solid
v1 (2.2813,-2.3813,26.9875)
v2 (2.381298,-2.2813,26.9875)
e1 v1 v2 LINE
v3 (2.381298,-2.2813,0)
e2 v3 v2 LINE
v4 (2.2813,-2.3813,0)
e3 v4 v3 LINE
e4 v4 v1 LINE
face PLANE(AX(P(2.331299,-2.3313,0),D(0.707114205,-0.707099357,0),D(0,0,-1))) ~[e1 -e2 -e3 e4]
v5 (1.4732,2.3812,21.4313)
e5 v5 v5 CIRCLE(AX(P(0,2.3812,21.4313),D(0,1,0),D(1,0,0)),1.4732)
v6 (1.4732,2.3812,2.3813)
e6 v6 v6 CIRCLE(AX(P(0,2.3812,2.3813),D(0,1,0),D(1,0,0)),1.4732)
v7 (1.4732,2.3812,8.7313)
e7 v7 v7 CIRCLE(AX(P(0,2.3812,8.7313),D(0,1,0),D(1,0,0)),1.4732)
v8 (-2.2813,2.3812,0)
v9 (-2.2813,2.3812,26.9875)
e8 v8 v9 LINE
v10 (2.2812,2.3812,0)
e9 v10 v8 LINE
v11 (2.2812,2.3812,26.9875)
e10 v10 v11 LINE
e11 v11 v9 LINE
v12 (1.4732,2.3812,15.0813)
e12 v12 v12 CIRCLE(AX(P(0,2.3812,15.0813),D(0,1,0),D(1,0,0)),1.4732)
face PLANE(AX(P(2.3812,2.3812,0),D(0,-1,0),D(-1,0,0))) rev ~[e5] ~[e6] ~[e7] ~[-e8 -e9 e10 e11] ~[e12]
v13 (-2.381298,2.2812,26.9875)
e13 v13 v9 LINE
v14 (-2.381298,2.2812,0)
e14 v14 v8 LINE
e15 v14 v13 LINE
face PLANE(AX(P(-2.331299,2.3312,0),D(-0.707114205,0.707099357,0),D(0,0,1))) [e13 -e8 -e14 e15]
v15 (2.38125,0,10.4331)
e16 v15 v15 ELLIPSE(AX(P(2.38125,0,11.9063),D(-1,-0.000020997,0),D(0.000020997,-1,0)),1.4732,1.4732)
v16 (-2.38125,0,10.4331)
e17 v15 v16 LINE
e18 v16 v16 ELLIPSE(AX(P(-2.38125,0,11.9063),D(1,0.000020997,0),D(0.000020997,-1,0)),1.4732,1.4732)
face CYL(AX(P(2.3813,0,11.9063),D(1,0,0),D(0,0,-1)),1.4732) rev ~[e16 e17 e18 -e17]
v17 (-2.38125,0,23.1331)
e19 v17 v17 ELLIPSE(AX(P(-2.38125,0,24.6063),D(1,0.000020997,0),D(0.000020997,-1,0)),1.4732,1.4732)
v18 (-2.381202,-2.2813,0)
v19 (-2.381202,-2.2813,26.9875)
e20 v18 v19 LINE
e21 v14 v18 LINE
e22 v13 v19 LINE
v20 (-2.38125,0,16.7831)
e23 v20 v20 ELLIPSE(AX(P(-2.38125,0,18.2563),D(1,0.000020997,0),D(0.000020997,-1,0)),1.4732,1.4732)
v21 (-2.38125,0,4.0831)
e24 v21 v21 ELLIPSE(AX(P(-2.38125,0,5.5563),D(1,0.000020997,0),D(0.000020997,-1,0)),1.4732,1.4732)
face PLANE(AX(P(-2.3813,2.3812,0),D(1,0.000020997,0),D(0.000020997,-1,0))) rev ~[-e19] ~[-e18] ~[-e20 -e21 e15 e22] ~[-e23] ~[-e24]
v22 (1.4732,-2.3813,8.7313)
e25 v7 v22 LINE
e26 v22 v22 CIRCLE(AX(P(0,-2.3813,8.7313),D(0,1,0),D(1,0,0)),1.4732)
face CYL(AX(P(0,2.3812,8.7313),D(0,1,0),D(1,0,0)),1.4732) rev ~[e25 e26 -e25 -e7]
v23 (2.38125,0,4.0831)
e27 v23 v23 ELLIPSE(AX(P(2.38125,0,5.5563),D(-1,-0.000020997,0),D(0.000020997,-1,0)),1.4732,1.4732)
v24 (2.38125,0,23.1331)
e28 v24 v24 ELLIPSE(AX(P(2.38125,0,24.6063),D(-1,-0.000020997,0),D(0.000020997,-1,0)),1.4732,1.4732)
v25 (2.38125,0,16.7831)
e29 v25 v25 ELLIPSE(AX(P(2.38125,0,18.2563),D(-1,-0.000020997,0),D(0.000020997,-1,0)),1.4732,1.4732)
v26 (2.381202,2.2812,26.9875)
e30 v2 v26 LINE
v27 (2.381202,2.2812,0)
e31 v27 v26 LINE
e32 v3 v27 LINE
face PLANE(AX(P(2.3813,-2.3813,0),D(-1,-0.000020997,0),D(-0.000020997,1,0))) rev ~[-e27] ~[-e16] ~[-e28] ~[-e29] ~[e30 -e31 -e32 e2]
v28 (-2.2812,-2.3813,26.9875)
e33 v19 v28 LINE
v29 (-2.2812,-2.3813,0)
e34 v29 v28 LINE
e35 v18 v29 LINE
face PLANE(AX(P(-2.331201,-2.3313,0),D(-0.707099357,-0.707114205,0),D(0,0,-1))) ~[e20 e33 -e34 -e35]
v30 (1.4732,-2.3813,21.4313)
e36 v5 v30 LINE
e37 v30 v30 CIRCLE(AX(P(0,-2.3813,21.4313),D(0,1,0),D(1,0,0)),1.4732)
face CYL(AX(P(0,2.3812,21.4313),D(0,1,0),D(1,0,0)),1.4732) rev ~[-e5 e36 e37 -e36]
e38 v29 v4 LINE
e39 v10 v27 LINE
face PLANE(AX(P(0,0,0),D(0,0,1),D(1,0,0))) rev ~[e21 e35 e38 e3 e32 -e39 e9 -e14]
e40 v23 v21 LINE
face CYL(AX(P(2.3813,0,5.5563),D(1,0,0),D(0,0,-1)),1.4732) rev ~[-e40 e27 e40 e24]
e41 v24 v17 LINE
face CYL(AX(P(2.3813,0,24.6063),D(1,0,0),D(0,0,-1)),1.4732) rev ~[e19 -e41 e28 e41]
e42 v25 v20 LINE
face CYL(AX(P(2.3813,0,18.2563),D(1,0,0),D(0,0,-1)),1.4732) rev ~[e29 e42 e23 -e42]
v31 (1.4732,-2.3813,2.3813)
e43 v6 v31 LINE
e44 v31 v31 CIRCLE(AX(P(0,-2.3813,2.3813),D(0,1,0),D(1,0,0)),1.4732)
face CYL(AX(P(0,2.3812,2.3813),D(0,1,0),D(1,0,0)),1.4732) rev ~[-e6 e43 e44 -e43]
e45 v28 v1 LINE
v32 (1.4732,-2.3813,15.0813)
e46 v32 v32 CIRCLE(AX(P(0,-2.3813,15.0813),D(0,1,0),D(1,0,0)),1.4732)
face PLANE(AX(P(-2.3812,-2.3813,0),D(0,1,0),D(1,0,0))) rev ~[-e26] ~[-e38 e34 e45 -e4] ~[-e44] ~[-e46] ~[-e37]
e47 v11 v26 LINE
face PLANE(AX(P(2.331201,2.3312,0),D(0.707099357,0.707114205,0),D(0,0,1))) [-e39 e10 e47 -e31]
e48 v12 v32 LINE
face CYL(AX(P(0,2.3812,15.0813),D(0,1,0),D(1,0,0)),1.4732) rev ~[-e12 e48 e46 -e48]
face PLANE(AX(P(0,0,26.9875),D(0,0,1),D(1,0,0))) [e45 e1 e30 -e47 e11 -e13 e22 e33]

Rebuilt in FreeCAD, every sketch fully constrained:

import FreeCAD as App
import Part
import Sketcher
Q = App.Units.Quantity


def edges_at(feature, points):
    """Names of the edges that pass closest to the given points."""
    edges = feature.Shape.Edges
    near = lambda p: min(range(len(edges)), key=lambda i: edges[i].distToShape(Part.Vertex(*p))[0])
    return sorted({f"Edge{near(p) + 1}" for p in points})


def add_polygon(sketch, points):
    """Adds a closed chain of lines whose ends are joined by coincident constraints."""
    first, n = sketch.GeometryCount, len(points)
    for a, b in zip(points, points[1:] + points[:1]):
        sketch.addGeometry(Part.LineSegment(App.Vector(*a, 0), App.Vector(*b, 0)), False)
    for i in range(n):
        sketch.addConstraint(Sketcher.Constraint("Coincident", first + i, 2, first + (i + 1) % n, 1))

doc = App.newDocument("Part")
body = doc.addObject("PartDesign::Body", "Body")

sketch1 = body.newObject("Sketcher::SketchObject", "Sketch")
sketch1.AttachmentSupport = (doc.getObject("XY_Plane"), [""])
sketch1.MapMode = "FlatFace"
add_polygon(sketch1, [(-2.4, 2.4), (-2.4, -2.4), (2.4, -2.4), (2.4, 2.4)])
sketch1.addConstraint(Sketcher.Constraint("Vertical", 0))
sketch1.addConstraint(Sketcher.Constraint("Horizontal", 1))
sketch1.addConstraint(Sketcher.Constraint("Vertical", 2))
sketch1.addConstraint(Sketcher.Constraint("Horizontal", 3))
sketch1.addConstraint(Sketcher.Constraint("Symmetric", 0, 2, 2, 2, -1, 1))
sketch1.addConstraint(Sketcher.Constraint("Equal", 3, 0))
sketch1.addConstraint(Sketcher.Constraint("DistanceX", 1, 1, 1, 2, Q("0.1875 in")))
pad1 = body.newObject("PartDesign::Pad", "Pad")
pad1.Profile = sketch1
pad1.Length = Q("1.0625 in")

sketch2 = body.newObject("Sketcher::SketchObject", "Sketch001")
sketch2.AttachmentSupport = (doc.getObject("XZ_Plane"), [""])
sketch2.MapMode = "FlatFace"
sketch2.AttachmentOffset = App.Placement(App.Vector(0, 0, -0.093748 * 25.4), App.Rotation())
sketch2.addGeometry(Part.Circle(App.Vector(0, 2.4, 0), App.Vector(0, 0, 1), 1.5), False)
sketch2.addGeometry(Part.Circle(App.Vector(0, 8.7, 0), App.Vector(0, 0, 1), 1.5), False)
sketch2.addGeometry(Part.Circle(App.Vector(0, 15.1, 0), App.Vector(0, 0, 1), 1.5), False)
sketch2.addGeometry(Part.Circle(App.Vector(0, 21.4, 0), App.Vector(0, 0, 1), 1.5), False)
sketch2.addConstraint(Sketcher.Constraint("Equal", 0, 1))
sketch2.addConstraint(Sketcher.Constraint("Equal", 1, 2))
sketch2.addConstraint(Sketcher.Constraint("Equal", 2, 3))
sketch2.addConstraint(Sketcher.Constraint("PointOnObject", 0, 3, -2))
sketch2.addConstraint(Sketcher.Constraint("PointOnObject", 1, 3, -2))
sketch2.addConstraint(Sketcher.Constraint("PointOnObject", 2, 3, -2))
sketch2.addConstraint(Sketcher.Constraint("PointOnObject", 3, 3, -2))
sketch2.addConstraint(Sketcher.Constraint("Diameter", 0, Q("0.116 in")))
sketch2.addConstraint(Sketcher.Constraint("DistanceY", 0, 3, 1, 3, Q("0.25 in")))
sketch2.addConstraint(Sketcher.Constraint("DistanceY", 1, 3, 2, 3, Q("0.25 in")))
sketch2.addConstraint(Sketcher.Constraint("DistanceY", 2, 3, 3, 3, Q("0.25 in")))
sketch2.addConstraint(Sketcher.Constraint("DistanceY", -1, 1, 0, 3, Q("0.093752 in")))
pocket1 = body.newObject("PartDesign::Pocket", "Pocket")
pocket1.Profile = sketch2
pocket1.Type = "ThroughAll"
pocket1.Reversed = True

sketch3 = body.newObject("Sketcher::SketchObject", "Sketch002")
sketch3.AttachmentSupport = (doc.getObject("YZ_Plane"), [""])
sketch3.MapMode = "FlatFace"
sketch3.AttachmentOffset = App.Placement(App.Vector(0, 0, 0.093752 * 25.4), App.Rotation())
sketch3.addGeometry(Part.Circle(App.Vector(0, 24.6, 0), App.Vector(0, 0, 1), 1.5), False)
sketch3.addGeometry(Part.Circle(App.Vector(0, 18.3, 0), App.Vector(0, 0, 1), 1.5), False)
sketch3.addGeometry(Part.Circle(App.Vector(0, 11.9, 0), App.Vector(0, 0, 1), 1.5), False)
sketch3.addGeometry(Part.Circle(App.Vector(0, 5.6, 0), App.Vector(0, 0, 1), 1.5), False)
sketch3.addConstraint(Sketcher.Constraint("Equal", 0, 1))
sketch3.addConstraint(Sketcher.Constraint("Equal", 1, 2))
sketch3.addConstraint(Sketcher.Constraint("Equal", 2, 3))
sketch3.addConstraint(Sketcher.Constraint("PointOnObject", 0, 3, -2))
sketch3.addConstraint(Sketcher.Constraint("PointOnObject", 1, 3, -2))
sketch3.addConstraint(Sketcher.Constraint("PointOnObject", 2, 3, -2))
sketch3.addConstraint(Sketcher.Constraint("PointOnObject", 3, 3, -2))
sketch3.addConstraint(Sketcher.Constraint("Diameter", 0, Q("0.116 in")))
sketch3.addConstraint(Sketcher.Constraint("DistanceY", 1, 3, 0, 3, Q("0.25 in")))
sketch3.addConstraint(Sketcher.Constraint("DistanceY", 2, 3, 1, 3, Q("0.25 in")))
sketch3.addConstraint(Sketcher.Constraint("DistanceY", 3, 3, 2, 3, Q("0.25 in")))
sketch3.addConstraint(Sketcher.Constraint("DistanceY", -1, 1, 0, 3, Q("0.968752 in")))
pocket2 = body.newObject("PartDesign::Pocket", "Pocket001")
pocket2.Profile = sketch3
pocket2.Type = "ThroughAll"
doc.recompute()

chamfer = body.newObject("PartDesign::Chamfer", "Chamfer")
chamfer.Base = (pocket2, edges_at(pocket2, [
    (-2.381, 2.381, 13.494),
    (2.381, 2.381, 13.494),
    (2.381, -2.381, 13.494),
    (-2.381, -2.381, 13.494),
]))
chamfer.Size = 0.1

doc.recompute()
